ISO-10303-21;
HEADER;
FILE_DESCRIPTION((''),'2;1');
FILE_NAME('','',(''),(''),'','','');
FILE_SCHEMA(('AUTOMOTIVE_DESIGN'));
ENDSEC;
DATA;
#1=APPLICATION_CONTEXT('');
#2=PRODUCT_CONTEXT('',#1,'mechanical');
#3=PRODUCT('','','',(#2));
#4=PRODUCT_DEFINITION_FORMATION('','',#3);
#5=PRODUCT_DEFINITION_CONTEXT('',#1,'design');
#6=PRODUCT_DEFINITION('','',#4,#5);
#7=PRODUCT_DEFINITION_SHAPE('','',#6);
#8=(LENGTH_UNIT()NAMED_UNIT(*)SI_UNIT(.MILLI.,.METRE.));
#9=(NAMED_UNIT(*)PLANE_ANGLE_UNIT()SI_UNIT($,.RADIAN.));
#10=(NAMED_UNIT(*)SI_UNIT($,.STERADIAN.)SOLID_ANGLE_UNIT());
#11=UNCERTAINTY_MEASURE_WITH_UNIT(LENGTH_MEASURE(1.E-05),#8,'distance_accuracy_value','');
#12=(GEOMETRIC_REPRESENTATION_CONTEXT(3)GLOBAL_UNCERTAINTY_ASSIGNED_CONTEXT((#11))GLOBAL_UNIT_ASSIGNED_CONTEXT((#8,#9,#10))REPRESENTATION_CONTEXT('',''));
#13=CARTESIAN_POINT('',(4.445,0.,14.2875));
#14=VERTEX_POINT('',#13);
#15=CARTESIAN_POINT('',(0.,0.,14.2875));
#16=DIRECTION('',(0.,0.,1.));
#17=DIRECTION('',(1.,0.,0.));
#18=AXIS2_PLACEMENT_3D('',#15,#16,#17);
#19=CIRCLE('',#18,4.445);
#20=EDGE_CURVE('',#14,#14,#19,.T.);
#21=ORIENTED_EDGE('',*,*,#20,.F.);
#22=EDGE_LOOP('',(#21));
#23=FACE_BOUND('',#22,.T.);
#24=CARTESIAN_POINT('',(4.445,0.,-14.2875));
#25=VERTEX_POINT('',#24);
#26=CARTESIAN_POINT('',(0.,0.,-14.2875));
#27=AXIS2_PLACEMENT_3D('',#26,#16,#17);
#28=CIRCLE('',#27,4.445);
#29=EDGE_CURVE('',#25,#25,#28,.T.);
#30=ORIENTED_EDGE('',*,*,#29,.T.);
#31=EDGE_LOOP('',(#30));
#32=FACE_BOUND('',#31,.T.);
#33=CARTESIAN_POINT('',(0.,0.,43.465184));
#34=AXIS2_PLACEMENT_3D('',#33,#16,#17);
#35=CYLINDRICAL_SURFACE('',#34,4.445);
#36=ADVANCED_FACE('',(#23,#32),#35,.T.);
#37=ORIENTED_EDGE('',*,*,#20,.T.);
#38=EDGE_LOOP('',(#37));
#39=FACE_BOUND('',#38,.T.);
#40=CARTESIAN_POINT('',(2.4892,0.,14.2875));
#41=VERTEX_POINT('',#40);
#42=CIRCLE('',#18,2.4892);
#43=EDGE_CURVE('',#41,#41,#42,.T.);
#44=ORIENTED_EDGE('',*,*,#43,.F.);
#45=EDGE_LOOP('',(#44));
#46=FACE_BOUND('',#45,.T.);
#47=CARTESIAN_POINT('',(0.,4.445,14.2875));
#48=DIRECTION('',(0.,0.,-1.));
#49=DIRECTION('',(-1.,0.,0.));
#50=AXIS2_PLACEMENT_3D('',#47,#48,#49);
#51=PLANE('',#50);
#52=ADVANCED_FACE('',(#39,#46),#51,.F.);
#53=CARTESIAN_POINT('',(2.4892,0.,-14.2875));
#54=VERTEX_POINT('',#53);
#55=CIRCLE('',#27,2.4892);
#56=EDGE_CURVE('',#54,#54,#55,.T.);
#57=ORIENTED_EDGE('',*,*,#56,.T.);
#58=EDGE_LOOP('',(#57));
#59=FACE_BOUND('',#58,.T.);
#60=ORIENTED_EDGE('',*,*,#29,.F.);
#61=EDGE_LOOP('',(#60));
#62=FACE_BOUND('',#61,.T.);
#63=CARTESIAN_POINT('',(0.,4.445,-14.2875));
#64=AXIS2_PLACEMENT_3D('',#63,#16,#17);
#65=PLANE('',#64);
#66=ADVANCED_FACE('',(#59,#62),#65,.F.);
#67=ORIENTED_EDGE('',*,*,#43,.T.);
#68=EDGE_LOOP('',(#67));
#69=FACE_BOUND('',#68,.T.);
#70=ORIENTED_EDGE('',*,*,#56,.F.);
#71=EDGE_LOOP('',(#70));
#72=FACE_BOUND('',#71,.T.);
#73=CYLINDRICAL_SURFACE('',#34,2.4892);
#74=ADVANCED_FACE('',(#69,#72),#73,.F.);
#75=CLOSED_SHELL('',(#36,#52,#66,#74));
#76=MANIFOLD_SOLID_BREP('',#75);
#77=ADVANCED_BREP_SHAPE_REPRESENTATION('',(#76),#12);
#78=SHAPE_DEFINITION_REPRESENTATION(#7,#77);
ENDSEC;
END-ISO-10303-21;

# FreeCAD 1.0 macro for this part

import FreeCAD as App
import Part
import Sketcher
Q = App.Units.Quantity

doc = App.newDocument("Part")
body = doc.addObject("PartDesign::Body", "Body")

sketch1 = doc.addObject("Sketcher::SketchObject", "Sketch")
body.addObject(sketch1)
sketch1.AttachmentSupport = (doc.YZ_Plane, [""])
sketch1.MapMode = "FlatFace"
sketch1.addGeometry([
    Part.LineSegment(App.Vector(4.4, 14.3, 0), App.Vector(2.5, 14.3, 0)),
    Part.LineSegment(App.Vector(2.5, 14.3, 0), App.Vector(2.5, -14.3, 0)),
    Part.LineSegment(App.Vector(2.5, -14.3, 0), App.Vector(4.4, -14.3, 0)),
    Part.LineSegment(App.Vector(4.4, -14.3, 0), App.Vector(4.4, 14.3, 0)),
], False)
sketch1.addConstraint([
    Sketcher.Constraint("Coincident", 0, 2, 1, 1),
    Sketcher.Constraint("Coincident", 1, 2, 2, 1),
    Sketcher.Constraint("Coincident", 2, 2, 3, 1),
    Sketcher.Constraint("Coincident", 3, 2, 0, 1),
    Sketcher.Constraint("Horizontal", 0),
    Sketcher.Constraint("Vertical", 1),
    Sketcher.Constraint("Horizontal", 2),
    Sketcher.Constraint("Vertical", 3),
    Sketcher.Constraint("DistanceX", 0, 2, 0, 1, Q("0.077 in")),
    Sketcher.Constraint("DistanceY", 1, 2, 1, 1, Q("1.125 in")),
    Sketcher.Constraint("DistanceX", -1, 1, 0, 2, Q("0.098 in")),
    Sketcher.Constraint("DistanceY", -1, 1, 0, 2, Q("0.5625 in")),
])
revolution = doc.addObject("PartDesign::Revolution", "Revolution")
body.addObject(revolution)
revolution.Profile = sketch1
revolution.ReferenceAxis = (sketch1, ["V_Axis"])
revolution.Angle = 360

doc.recompute()
